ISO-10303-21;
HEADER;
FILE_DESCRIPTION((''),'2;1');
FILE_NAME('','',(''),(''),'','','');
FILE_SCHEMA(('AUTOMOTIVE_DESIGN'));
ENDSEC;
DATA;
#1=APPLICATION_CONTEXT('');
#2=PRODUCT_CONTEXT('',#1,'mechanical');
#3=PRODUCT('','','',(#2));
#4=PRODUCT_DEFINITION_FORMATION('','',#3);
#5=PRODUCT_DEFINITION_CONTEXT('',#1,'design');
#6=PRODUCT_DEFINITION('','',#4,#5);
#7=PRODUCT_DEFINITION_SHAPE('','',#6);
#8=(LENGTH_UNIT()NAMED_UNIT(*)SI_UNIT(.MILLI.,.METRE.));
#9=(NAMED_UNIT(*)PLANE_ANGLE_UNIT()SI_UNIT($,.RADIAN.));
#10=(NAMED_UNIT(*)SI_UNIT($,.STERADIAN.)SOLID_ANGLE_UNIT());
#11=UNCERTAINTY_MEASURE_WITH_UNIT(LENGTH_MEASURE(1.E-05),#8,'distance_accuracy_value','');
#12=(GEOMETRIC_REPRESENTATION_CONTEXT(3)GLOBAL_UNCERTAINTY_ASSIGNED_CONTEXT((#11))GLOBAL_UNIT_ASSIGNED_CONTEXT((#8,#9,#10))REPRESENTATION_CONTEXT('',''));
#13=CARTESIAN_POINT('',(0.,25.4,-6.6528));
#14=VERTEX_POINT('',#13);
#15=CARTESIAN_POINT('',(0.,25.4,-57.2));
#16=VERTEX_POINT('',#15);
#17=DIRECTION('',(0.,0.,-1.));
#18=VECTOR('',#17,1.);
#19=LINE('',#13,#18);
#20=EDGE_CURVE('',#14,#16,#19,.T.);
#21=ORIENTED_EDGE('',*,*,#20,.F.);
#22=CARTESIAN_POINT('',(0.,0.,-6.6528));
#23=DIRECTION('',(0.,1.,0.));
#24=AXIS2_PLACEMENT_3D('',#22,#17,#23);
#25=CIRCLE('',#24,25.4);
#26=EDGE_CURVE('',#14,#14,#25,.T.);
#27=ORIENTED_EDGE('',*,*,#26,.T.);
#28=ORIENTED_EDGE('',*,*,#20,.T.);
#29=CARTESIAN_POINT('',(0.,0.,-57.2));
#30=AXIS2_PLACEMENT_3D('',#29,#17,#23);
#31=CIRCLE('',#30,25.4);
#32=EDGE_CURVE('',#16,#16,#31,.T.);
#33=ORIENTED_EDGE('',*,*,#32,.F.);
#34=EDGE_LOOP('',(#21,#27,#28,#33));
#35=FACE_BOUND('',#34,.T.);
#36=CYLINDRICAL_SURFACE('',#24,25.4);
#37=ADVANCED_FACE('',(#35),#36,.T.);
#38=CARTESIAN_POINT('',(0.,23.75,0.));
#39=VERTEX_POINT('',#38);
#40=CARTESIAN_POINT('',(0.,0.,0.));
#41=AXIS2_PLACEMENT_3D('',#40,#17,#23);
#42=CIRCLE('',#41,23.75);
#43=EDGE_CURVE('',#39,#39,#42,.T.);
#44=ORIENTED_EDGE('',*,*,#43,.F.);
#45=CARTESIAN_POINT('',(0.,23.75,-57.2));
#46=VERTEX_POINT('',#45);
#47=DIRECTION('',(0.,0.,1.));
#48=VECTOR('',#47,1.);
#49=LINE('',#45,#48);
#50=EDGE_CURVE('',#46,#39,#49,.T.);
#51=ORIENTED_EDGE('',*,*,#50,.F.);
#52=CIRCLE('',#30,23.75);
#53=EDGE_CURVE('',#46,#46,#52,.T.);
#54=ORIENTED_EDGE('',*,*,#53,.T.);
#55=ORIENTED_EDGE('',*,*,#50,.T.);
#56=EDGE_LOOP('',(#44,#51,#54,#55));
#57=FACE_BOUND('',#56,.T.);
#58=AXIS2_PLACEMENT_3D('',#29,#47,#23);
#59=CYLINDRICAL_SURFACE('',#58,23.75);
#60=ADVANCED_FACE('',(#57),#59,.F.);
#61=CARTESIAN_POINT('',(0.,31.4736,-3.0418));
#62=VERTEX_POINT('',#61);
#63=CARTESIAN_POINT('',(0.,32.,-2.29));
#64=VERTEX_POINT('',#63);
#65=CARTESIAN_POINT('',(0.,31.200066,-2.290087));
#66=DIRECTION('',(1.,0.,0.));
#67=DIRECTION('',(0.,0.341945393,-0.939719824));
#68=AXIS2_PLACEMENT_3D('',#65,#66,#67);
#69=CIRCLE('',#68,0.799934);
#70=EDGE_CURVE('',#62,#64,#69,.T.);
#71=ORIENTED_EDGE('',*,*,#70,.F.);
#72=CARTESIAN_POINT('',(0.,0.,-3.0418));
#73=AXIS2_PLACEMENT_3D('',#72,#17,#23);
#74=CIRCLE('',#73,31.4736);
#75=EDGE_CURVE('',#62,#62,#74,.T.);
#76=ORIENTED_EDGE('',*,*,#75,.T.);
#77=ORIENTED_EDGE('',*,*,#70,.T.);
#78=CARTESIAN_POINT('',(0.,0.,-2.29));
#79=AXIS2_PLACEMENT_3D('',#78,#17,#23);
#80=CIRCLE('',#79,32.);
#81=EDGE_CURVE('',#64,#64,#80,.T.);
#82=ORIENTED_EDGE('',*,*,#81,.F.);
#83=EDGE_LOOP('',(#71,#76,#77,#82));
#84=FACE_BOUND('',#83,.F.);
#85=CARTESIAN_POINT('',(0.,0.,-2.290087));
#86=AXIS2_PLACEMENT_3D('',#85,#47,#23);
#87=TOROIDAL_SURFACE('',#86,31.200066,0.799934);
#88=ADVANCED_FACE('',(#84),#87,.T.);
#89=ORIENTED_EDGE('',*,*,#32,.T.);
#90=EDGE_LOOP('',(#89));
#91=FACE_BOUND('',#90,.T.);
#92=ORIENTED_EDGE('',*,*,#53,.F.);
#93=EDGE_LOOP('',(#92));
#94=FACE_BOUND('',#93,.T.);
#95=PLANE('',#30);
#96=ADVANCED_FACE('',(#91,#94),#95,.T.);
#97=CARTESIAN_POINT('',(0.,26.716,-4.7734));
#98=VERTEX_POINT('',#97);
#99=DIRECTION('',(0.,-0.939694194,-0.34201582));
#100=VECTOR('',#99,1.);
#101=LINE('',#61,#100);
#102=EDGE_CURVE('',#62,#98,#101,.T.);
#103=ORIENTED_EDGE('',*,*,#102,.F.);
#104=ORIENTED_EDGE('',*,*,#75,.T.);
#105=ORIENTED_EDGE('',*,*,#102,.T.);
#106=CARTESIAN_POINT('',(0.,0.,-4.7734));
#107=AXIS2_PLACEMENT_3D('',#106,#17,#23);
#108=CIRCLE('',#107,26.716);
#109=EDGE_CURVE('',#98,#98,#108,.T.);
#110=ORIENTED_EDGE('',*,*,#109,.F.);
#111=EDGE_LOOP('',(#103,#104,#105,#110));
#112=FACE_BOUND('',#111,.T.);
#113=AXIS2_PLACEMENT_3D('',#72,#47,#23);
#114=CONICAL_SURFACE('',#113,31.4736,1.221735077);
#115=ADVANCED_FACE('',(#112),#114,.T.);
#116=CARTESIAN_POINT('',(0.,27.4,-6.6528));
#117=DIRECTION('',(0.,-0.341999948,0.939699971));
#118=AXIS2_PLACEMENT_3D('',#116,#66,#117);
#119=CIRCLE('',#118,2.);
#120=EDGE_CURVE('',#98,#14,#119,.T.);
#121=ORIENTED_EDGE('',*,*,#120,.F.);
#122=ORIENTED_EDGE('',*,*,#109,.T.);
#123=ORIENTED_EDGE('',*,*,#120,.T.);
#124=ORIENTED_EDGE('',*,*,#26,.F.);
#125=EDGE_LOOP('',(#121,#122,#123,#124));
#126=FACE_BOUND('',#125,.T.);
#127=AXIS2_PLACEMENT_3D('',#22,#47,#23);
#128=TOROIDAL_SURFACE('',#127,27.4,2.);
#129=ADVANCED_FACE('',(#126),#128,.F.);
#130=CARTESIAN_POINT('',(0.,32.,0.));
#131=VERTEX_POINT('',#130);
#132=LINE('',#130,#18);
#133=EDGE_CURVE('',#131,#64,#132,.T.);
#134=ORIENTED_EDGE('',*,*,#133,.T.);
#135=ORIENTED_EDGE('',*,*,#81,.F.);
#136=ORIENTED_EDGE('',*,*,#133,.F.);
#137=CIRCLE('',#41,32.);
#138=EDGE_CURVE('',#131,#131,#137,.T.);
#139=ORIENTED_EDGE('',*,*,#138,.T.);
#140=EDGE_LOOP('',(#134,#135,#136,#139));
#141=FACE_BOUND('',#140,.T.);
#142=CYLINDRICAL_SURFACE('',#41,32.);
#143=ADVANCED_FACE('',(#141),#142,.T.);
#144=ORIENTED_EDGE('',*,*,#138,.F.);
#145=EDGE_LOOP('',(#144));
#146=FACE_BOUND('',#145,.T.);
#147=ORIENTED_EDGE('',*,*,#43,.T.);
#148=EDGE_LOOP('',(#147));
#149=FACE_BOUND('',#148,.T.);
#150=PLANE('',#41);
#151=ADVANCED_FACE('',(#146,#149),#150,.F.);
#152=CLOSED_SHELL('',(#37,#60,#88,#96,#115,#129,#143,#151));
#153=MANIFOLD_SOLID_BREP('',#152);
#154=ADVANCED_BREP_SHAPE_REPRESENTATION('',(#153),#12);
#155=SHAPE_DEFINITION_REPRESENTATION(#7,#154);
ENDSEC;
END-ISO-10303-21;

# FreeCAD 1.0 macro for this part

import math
import FreeCAD as App
import Part
import Sketcher

V = App.Vector
Q = App.Units.Quantity

doc = App.newDocument("Part")
body = doc.addObject("PartDesign::Body", "Body")

# Sketch on YZ plane
sketch1 = body.newObject("Sketcher::SketchObject", "Sketch")
sketch1.AttachmentSupport = (doc.getObject("YZ_Plane"), [""])
sketch1.MapMode = "FlatFace"
sketch1.addGeometry([
    Part.LineSegment(V(23.8, 0, 0), V(23.8, -57.2, 0)),  # 0
    Part.LineSegment(V(23.8, -57.2, 0), V(25.4, -57.2, 0)),  # 1
    Part.LineSegment(V(25.4, -57.2, 0), V(25.4, -6.7, 0)),  # 2
    Part.ArcOfCircle(Part.Circle(V(27.4, -6.7, 0), V(0, 0, 1), 2), math.radians(110), math.radians(180)),  # 3
    Part.LineSegment(V(26.7, -4.8, 0), V(31.5, -3, 0)),  # 4
    Part.ArcOfCircle(Part.Circle(V(31.2, -2.3, 0), V(0, 0, 1), 0.8), math.radians(-70), math.radians(0)),  # 5
    Part.LineSegment(V(32, -2.3, 0), V(32, 0, 0)),  # 6
    Part.LineSegment(V(32, 0, 0), V(23.8, 0, 0)),  # 7
], False)
sketch1.addConstraint([
    Sketcher.Constraint("Coincident", 0, 2, 1, 1),
    Sketcher.Constraint("Coincident", 1, 2, 2, 1),
    Sketcher.Constraint("Tangent", 2, 2, 3, 2),
    Sketcher.Constraint("Tangent", 3, 1, 4, 1),
    Sketcher.Constraint("Tangent", 4, 2, 5, 1),
    Sketcher.Constraint("Tangent", 5, 2, 6, 1),
    Sketcher.Constraint("Coincident", 6, 2, 7, 1),
    Sketcher.Constraint("Coincident", 7, 2, 0, 1),
    Sketcher.Constraint("Vertical", 0),
    Sketcher.Constraint("Horizontal", 1),
    Sketcher.Constraint("Vertical", 2),
    Sketcher.Constraint("Vertical", 6),
    Sketcher.Constraint("Horizontal", 7),
    Sketcher.Constraint("PointOnObject", 6, 2, -1),
    Sketcher.Constraint("Radius", 3, Q("2 mm")),
    Sketcher.Constraint("Radius", 5, Q("0.8 mm")),
    Sketcher.Constraint("Angle", 4, Q("19.9997 deg")),
    Sketcher.Constraint("DistanceY", 0, 2, 0, 1, Q("57.2 mm")),
    Sketcher.Constraint("DistanceX", 1, 1, 1, 2, Q("1.65 mm")),
    Sketcher.Constraint("DistanceY", 6, 1, 6, 2, Q("2.29 mm")),
    Sketcher.Constraint("DistanceX", -1, 1, 5, 2, Q("32 mm")),
    Sketcher.Constraint("DistanceX", 7, 2, 7, 1, Q("8.25 mm")),
])
revolution = body.newObject("PartDesign::Revolution", "Revolution")
revolution.Profile = sketch1
revolution.ReferenceAxis = (sketch1, ["V_Axis"])
revolution.Angle = 360

doc.recompute()
